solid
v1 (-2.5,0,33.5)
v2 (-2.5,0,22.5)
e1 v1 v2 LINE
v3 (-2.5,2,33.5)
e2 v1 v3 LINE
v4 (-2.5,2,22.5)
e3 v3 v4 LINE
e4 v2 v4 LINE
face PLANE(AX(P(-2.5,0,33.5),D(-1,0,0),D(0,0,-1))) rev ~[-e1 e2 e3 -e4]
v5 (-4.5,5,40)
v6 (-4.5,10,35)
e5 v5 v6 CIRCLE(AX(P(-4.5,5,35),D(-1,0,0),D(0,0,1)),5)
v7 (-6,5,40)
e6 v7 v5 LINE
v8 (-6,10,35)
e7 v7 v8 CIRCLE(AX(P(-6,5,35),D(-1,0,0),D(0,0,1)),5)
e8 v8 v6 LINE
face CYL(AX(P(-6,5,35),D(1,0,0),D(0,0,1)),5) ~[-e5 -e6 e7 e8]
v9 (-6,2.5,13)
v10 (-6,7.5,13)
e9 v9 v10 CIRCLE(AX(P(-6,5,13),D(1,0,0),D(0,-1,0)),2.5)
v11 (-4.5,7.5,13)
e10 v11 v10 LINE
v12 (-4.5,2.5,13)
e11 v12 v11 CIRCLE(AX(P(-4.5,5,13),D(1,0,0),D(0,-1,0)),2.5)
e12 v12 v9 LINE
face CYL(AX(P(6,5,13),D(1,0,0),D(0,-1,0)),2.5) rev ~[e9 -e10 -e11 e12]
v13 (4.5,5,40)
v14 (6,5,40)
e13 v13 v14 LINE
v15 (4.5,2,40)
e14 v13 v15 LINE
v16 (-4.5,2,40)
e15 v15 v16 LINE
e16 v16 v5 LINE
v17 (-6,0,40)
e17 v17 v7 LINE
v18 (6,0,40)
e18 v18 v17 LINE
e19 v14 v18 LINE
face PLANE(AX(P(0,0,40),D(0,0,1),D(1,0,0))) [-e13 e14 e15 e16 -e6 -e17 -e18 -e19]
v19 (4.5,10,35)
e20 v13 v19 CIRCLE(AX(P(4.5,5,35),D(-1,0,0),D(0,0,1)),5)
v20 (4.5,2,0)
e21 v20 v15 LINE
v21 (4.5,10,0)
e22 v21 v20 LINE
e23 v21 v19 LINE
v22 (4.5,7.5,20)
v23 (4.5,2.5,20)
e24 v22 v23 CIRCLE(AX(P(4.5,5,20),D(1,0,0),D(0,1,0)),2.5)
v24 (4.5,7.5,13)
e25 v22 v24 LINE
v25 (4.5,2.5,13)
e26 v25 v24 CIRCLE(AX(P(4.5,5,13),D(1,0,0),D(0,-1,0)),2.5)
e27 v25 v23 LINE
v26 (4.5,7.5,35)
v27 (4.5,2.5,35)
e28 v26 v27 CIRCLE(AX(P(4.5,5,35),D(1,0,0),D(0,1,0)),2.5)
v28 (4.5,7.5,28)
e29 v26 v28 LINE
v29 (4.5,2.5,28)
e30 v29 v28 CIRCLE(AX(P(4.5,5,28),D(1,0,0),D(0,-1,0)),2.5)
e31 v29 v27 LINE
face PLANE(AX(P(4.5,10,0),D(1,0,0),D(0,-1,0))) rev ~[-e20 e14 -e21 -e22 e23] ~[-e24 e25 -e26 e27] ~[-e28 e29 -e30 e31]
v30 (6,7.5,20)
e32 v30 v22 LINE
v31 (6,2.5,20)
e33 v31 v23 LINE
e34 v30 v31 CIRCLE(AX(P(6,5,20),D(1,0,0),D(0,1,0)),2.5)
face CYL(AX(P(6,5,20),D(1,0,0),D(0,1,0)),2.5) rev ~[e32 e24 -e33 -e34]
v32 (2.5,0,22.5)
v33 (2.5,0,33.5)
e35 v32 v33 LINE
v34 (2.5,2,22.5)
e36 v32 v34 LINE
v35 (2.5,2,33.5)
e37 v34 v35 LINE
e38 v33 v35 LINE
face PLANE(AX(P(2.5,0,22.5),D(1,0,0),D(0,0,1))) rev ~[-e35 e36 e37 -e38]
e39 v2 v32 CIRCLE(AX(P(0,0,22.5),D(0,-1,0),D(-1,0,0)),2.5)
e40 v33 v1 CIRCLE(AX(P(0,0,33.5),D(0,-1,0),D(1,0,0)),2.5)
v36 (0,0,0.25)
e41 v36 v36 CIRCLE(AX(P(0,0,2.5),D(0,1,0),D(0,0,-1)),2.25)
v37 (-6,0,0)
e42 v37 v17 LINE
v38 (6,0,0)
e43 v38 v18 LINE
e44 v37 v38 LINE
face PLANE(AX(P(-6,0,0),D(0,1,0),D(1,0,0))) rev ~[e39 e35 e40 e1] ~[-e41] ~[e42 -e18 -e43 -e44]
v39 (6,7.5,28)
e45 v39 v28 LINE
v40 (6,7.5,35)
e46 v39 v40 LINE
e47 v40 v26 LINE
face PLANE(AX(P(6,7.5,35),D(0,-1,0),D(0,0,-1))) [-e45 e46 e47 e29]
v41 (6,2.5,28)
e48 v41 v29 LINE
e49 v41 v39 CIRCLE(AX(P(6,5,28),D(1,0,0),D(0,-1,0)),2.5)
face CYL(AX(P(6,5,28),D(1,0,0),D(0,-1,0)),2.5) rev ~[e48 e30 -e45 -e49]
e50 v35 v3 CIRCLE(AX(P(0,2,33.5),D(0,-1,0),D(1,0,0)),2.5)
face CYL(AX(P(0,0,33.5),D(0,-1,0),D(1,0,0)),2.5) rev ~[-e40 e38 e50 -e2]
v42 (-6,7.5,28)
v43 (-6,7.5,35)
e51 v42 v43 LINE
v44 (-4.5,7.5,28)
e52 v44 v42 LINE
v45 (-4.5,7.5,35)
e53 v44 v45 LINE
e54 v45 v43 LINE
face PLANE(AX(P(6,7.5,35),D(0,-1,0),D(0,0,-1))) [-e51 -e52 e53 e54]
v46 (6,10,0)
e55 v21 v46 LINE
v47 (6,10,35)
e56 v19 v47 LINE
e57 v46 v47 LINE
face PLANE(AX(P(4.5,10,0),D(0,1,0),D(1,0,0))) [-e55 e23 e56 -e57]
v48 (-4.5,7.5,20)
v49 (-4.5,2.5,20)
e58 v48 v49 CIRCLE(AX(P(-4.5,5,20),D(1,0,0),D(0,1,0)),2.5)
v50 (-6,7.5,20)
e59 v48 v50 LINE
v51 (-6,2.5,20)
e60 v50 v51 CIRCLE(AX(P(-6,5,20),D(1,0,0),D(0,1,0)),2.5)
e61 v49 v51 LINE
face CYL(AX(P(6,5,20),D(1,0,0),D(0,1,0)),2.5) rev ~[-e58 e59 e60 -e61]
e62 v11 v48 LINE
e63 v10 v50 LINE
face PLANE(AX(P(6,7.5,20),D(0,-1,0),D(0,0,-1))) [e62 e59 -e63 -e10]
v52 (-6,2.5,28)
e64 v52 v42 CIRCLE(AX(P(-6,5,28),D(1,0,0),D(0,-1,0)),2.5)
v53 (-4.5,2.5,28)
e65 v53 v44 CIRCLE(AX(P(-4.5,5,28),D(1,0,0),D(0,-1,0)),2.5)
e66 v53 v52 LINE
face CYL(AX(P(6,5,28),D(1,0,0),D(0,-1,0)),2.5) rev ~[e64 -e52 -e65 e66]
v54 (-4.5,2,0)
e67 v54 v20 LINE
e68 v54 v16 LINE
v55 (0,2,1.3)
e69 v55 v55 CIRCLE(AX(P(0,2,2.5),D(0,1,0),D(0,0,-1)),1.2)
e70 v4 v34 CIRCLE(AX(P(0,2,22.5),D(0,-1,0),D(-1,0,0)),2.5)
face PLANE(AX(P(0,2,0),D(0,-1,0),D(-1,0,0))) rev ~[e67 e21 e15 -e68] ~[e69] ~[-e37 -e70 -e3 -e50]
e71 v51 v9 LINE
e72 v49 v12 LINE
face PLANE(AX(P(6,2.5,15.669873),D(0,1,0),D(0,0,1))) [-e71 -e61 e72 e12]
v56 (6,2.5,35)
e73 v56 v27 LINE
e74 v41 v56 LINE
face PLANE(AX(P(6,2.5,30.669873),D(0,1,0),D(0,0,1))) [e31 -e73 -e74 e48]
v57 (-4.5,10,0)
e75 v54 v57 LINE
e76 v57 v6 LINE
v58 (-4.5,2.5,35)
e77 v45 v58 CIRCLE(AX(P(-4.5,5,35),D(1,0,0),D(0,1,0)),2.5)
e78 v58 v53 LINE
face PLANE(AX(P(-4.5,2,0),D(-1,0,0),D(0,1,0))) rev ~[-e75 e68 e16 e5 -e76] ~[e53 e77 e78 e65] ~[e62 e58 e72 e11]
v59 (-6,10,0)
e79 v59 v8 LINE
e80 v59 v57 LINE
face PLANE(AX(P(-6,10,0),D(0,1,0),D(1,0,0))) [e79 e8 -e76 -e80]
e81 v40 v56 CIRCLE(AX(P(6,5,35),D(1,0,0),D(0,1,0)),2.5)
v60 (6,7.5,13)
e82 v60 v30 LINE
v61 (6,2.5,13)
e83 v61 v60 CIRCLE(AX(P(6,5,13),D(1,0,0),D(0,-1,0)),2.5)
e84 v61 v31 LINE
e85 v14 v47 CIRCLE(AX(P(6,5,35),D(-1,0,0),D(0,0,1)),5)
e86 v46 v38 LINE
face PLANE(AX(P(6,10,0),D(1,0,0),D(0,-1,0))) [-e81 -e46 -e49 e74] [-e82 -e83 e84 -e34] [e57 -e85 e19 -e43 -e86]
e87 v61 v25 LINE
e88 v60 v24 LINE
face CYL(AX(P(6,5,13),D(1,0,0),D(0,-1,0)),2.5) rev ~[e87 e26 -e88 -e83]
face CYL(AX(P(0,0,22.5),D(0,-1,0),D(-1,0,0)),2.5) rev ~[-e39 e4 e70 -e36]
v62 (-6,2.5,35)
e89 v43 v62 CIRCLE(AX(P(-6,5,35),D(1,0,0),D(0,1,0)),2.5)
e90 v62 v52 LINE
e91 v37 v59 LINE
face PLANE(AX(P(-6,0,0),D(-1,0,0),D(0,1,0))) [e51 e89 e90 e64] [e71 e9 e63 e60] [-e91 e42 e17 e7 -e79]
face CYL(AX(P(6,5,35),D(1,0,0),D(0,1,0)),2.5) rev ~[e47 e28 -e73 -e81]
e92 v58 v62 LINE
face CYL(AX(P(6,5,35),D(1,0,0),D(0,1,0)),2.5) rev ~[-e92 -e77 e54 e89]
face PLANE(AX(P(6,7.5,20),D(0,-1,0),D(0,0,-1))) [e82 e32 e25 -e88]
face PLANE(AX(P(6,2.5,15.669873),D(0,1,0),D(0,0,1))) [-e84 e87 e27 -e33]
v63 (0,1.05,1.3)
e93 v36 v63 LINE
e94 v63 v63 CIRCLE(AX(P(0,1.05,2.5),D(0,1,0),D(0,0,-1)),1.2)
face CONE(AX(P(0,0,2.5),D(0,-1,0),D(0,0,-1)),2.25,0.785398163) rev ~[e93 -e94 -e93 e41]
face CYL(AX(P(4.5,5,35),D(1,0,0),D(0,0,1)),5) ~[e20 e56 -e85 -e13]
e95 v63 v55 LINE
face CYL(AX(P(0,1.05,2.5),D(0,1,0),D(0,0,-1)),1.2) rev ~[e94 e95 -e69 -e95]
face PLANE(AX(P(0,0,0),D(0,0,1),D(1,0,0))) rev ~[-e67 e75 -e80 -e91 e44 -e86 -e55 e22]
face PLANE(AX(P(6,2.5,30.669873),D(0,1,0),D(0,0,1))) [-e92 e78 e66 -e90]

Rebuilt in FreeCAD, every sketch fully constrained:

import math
import FreeCAD as App
import Part
import Sketcher
Q = App.Units.Quantity


def edges_at(feature, points):
    """Names of the edges that pass closest to the given points."""
    edges = feature.Shape.Edges
    near = lambda p: min(range(len(edges)), key=lambda i: edges[i].distToShape(Part.Vertex(*p))[0])
    return sorted({f"Edge{near(p) + 1}" for p in points})

doc = App.newDocument("Part")
body = doc.addObject("PartDesign::Body", "Body")

# Sketch on XY plane
sketch1 = doc.addObject("Sketcher::SketchObject", "Sketch")
body.addObject(sketch1)
sketch1.AttachmentSupport = (doc.XY_Plane, [""])
sketch1.MapMode = "FlatFace"
sketch1.addGeometry([
    Part.LineSegment(App.Vector(-6, 10, 0), App.Vector(-6, 0, 0)),  # 0
    Part.LineSegment(App.Vector(-6, 0, 0), App.Vector(6, 0, 0)),  # 1
    Part.LineSegment(App.Vector(6, 0, 0), App.Vector(6, 10, 0)),  # 2
    Part.LineSegment(App.Vector(6, 10, 0), App.Vector(4.5, 10, 0)),  # 3
    Part.LineSegment(App.Vector(4.5, 10, 0), App.Vector(4.5, 2, 0)),  # 4
    Part.LineSegment(App.Vector(4.5, 2, 0), App.Vector(-4.5, 2, 0)),  # 5
    Part.LineSegment(App.Vector(-4.5, 2, 0), App.Vector(-4.5, 10, 0)),  # 6
    Part.LineSegment(App.Vector(-4.5, 10, 0), App.Vector(-6, 10, 0)),  # 7
], False)
sketch1.addConstraint([
    Sketcher.Constraint("Coincident", 0, 2, 1, 1),
    Sketcher.Constraint("Coincident", 1, 2, 2, 1),
    Sketcher.Constraint("Coincident", 2, 2, 3, 1),
    Sketcher.Constraint("Coincident", 3, 2, 4, 1),
    Sketcher.Constraint("Coincident", 4, 2, 5, 1),
    Sketcher.Constraint("Coincident", 5, 2, 6, 1),
    Sketcher.Constraint("Coincident", 6, 2, 7, 1),
    Sketcher.Constraint("Coincident", 7, 2, 0, 1),
    Sketcher.Constraint("Vertical", 0),
    Sketcher.Constraint("Horizontal", 1),
    Sketcher.Constraint("Vertical", 2),
    Sketcher.Constraint("Horizontal", 3),
    Sketcher.Constraint("Vertical", 4),
    Sketcher.Constraint("Horizontal", 5),
    Sketcher.Constraint("Vertical", 6),
    Sketcher.Constraint("Horizontal", 7),
    Sketcher.Constraint("Symmetric", 0, 2, 1, 2, -1, 1),
    Sketcher.Constraint("Symmetric", 3, 2, 6, 2, -2),
    Sketcher.Constraint("DistanceX", 5, 2, 5, 1, Q("9 mm")),
    Sketcher.Constraint("DistanceY", 0, 2, 0, 1, Q("10 mm")),
    Sketcher.Constraint("DistanceX", 3, 2, 3, 1, Q("1.5 mm")),
    Sketcher.Constraint("DistanceY", -1, 1, 4, 2, Q("2 mm")),
])
pad1 = doc.addObject("PartDesign::Pad", "Pad")
body.addObject(pad1)
pad1.Profile = sketch1
pad1.Length = 40

# Sketch on XZ plane
sketch2 = doc.addObject("Sketcher::SketchObject", "Sketch001")
body.addObject(sketch2)
sketch2.AttachmentSupport = (doc.XZ_Plane, [""])
sketch2.MapMode = "FlatFace"
sketch2.addGeometry(Part.Circle(App.Vector(0, 2.5, 0), App.Vector(0, 0, 1), 1.2), False)
sketch2.addConstraint([
    Sketcher.Constraint("PointOnObject", 0, 3, -2),
    Sketcher.Constraint("Diameter", 0, Q("2.4 mm")),
    Sketcher.Constraint("DistanceY", -1, 1, 0, 3, Q("2.5 mm")),
])
doc.recompute()
hole = doc.addObject("PartDesign::Hole", "Hole")
body.addObject(hole)
hole.Profile = sketch2
hole.ThreadType = "None"
hole.Diameter = 2.4
hole.DepthType = "ThroughAll"
hole.HoleCutType = "Countersink"
hole.HoleCutDiameter = 4.5
hole.HoleCutCountersinkAngle = 90

# Sketch on XZ plane
sketch3 = doc.addObject("Sketcher::SketchObject", "Sketch002")
body.addObject(sketch3)
sketch3.AttachmentSupport = (doc.XZ_Plane, [""])
sketch3.MapMode = "FlatFace"
sketch3.addGeometry([
    Part.ArcOfCircle(Part.Circle(App.Vector(0, 33.5, 0), App.Vector(0, 0, 1), 2.5), math.radians(0), math.radians(180)),
    Part.LineSegment(App.Vector(-2.5, 33.5, 0), App.Vector(-2.5, 22.5, 0)),
    Part.ArcOfCircle(Part.Circle(App.Vector(0, 22.5, 0), App.Vector(0, 0, 1), 2.5), math.radians(180), math.radians(360)),
    Part.LineSegment(App.Vector(2.5, 22.5, 0), App.Vector(2.5, 33.5, 0)),
], False)
sketch3.addConstraint([
    Sketcher.Constraint("Tangent", 0, 2, 1, 1),
    Sketcher.Constraint("Tangent", 1, 2, 2, 1),
    Sketcher.Constraint("Tangent", 2, 2, 3, 1),
    Sketcher.Constraint("Tangent", 3, 2, 0, 1),
    Sketcher.Constraint("Vertical", 1),
    Sketcher.Constraint("Vertical", 3),
    Sketcher.Constraint("PointOnObject", 0, 3, -2),
    Sketcher.Constraint("Radius", 0, Q("2.5 mm")),
    Sketcher.Constraint("DistanceY", 1, 2, 1, 1, Q("11 mm")),
    Sketcher.Constraint("DistanceY", -1, 1, 0, 3, Q("33.5 mm")),
])
pocket1 = doc.addObject("PartDesign::Pocket", "Pocket")
body.addObject(pocket1)
pocket1.Profile = sketch3
pocket1.Type = "ThroughAll"

# Sketch on YZ plane
sketch4 = doc.addObject("Sketcher::SketchObject", "Sketch003")
body.addObject(sketch4)
sketch4.AttachmentSupport = (doc.YZ_Plane, [""])
sketch4.MapMode = "FlatFace"
sketch4.AttachmentOffset = App.Placement(App.Vector(0, 0, 6), App.Rotation())
sketch4.addGeometry([
    Part.LineSegment(App.Vector(2.5, 35, 0), App.Vector(2.5, 28, 0)),
    Part.ArcOfCircle(Part.Circle(App.Vector(5, 28, 0), App.Vector(0, 0, 1), 2.5), math.radians(180), math.radians(360)),
    Part.LineSegment(App.Vector(7.5, 28, 0), App.Vector(7.5, 35, 0)),
    Part.ArcOfCircle(Part.Circle(App.Vector(5, 35, 0), App.Vector(0, 0, 1), 2.5), math.radians(0), math.radians(180)),
], False)
sketch4.addConstraint([
    Sketcher.Constraint("Tangent", 0, 2, 1, 1),
    Sketcher.Constraint("Tangent", 1, 2, 2, 1),
    Sketcher.Constraint("Tangent", 2, 2, 3, 1),
    Sketcher.Constraint("Tangent", 3, 2, 0, 1),
    Sketcher.Constraint("Vertical", 0),
    Sketcher.Constraint("Vertical", 2),
    Sketcher.Constraint("Radius", 1, Q("2.5 mm")),
    Sketcher.Constraint("DistanceY", 0, 2, 0, 1, Q("7 mm")),
    Sketcher.Constraint("DistanceX", -1, 1, 1, 3, Q("5 mm")),
    Sketcher.Constraint("DistanceY", -1, 1, 1, 3, Q("28 mm")),
])
pocket2 = doc.addObject("PartDesign::Pocket", "Pocket001")
body.addObject(pocket2)
pocket2.Profile = sketch4
pocket2.Type = "ThroughAll"
doc.recompute()

linearpattern = doc.addObject("PartDesign::LinearPattern", "LinearPattern")
body.addObject(linearpattern)
linearpattern.Originals = [pocket2]
linearpattern.Direction = (doc.Z_Axis, [""])
linearpattern.Mode = "offset"
linearpattern.Offset = 15
linearpattern.Occurrences = 2
linearpattern.Reversed = True
body.Tip = linearpattern
doc.recompute()

fillet = doc.addObject("PartDesign::Fillet", "Fillet")
body.addObject(fillet)
fillet.Base = (linearpattern, edges_at(linearpattern, [(-5.25, 10, 40), (5.25, 10, 40)]))
fillet.Radius = 5

doc.recompute()
